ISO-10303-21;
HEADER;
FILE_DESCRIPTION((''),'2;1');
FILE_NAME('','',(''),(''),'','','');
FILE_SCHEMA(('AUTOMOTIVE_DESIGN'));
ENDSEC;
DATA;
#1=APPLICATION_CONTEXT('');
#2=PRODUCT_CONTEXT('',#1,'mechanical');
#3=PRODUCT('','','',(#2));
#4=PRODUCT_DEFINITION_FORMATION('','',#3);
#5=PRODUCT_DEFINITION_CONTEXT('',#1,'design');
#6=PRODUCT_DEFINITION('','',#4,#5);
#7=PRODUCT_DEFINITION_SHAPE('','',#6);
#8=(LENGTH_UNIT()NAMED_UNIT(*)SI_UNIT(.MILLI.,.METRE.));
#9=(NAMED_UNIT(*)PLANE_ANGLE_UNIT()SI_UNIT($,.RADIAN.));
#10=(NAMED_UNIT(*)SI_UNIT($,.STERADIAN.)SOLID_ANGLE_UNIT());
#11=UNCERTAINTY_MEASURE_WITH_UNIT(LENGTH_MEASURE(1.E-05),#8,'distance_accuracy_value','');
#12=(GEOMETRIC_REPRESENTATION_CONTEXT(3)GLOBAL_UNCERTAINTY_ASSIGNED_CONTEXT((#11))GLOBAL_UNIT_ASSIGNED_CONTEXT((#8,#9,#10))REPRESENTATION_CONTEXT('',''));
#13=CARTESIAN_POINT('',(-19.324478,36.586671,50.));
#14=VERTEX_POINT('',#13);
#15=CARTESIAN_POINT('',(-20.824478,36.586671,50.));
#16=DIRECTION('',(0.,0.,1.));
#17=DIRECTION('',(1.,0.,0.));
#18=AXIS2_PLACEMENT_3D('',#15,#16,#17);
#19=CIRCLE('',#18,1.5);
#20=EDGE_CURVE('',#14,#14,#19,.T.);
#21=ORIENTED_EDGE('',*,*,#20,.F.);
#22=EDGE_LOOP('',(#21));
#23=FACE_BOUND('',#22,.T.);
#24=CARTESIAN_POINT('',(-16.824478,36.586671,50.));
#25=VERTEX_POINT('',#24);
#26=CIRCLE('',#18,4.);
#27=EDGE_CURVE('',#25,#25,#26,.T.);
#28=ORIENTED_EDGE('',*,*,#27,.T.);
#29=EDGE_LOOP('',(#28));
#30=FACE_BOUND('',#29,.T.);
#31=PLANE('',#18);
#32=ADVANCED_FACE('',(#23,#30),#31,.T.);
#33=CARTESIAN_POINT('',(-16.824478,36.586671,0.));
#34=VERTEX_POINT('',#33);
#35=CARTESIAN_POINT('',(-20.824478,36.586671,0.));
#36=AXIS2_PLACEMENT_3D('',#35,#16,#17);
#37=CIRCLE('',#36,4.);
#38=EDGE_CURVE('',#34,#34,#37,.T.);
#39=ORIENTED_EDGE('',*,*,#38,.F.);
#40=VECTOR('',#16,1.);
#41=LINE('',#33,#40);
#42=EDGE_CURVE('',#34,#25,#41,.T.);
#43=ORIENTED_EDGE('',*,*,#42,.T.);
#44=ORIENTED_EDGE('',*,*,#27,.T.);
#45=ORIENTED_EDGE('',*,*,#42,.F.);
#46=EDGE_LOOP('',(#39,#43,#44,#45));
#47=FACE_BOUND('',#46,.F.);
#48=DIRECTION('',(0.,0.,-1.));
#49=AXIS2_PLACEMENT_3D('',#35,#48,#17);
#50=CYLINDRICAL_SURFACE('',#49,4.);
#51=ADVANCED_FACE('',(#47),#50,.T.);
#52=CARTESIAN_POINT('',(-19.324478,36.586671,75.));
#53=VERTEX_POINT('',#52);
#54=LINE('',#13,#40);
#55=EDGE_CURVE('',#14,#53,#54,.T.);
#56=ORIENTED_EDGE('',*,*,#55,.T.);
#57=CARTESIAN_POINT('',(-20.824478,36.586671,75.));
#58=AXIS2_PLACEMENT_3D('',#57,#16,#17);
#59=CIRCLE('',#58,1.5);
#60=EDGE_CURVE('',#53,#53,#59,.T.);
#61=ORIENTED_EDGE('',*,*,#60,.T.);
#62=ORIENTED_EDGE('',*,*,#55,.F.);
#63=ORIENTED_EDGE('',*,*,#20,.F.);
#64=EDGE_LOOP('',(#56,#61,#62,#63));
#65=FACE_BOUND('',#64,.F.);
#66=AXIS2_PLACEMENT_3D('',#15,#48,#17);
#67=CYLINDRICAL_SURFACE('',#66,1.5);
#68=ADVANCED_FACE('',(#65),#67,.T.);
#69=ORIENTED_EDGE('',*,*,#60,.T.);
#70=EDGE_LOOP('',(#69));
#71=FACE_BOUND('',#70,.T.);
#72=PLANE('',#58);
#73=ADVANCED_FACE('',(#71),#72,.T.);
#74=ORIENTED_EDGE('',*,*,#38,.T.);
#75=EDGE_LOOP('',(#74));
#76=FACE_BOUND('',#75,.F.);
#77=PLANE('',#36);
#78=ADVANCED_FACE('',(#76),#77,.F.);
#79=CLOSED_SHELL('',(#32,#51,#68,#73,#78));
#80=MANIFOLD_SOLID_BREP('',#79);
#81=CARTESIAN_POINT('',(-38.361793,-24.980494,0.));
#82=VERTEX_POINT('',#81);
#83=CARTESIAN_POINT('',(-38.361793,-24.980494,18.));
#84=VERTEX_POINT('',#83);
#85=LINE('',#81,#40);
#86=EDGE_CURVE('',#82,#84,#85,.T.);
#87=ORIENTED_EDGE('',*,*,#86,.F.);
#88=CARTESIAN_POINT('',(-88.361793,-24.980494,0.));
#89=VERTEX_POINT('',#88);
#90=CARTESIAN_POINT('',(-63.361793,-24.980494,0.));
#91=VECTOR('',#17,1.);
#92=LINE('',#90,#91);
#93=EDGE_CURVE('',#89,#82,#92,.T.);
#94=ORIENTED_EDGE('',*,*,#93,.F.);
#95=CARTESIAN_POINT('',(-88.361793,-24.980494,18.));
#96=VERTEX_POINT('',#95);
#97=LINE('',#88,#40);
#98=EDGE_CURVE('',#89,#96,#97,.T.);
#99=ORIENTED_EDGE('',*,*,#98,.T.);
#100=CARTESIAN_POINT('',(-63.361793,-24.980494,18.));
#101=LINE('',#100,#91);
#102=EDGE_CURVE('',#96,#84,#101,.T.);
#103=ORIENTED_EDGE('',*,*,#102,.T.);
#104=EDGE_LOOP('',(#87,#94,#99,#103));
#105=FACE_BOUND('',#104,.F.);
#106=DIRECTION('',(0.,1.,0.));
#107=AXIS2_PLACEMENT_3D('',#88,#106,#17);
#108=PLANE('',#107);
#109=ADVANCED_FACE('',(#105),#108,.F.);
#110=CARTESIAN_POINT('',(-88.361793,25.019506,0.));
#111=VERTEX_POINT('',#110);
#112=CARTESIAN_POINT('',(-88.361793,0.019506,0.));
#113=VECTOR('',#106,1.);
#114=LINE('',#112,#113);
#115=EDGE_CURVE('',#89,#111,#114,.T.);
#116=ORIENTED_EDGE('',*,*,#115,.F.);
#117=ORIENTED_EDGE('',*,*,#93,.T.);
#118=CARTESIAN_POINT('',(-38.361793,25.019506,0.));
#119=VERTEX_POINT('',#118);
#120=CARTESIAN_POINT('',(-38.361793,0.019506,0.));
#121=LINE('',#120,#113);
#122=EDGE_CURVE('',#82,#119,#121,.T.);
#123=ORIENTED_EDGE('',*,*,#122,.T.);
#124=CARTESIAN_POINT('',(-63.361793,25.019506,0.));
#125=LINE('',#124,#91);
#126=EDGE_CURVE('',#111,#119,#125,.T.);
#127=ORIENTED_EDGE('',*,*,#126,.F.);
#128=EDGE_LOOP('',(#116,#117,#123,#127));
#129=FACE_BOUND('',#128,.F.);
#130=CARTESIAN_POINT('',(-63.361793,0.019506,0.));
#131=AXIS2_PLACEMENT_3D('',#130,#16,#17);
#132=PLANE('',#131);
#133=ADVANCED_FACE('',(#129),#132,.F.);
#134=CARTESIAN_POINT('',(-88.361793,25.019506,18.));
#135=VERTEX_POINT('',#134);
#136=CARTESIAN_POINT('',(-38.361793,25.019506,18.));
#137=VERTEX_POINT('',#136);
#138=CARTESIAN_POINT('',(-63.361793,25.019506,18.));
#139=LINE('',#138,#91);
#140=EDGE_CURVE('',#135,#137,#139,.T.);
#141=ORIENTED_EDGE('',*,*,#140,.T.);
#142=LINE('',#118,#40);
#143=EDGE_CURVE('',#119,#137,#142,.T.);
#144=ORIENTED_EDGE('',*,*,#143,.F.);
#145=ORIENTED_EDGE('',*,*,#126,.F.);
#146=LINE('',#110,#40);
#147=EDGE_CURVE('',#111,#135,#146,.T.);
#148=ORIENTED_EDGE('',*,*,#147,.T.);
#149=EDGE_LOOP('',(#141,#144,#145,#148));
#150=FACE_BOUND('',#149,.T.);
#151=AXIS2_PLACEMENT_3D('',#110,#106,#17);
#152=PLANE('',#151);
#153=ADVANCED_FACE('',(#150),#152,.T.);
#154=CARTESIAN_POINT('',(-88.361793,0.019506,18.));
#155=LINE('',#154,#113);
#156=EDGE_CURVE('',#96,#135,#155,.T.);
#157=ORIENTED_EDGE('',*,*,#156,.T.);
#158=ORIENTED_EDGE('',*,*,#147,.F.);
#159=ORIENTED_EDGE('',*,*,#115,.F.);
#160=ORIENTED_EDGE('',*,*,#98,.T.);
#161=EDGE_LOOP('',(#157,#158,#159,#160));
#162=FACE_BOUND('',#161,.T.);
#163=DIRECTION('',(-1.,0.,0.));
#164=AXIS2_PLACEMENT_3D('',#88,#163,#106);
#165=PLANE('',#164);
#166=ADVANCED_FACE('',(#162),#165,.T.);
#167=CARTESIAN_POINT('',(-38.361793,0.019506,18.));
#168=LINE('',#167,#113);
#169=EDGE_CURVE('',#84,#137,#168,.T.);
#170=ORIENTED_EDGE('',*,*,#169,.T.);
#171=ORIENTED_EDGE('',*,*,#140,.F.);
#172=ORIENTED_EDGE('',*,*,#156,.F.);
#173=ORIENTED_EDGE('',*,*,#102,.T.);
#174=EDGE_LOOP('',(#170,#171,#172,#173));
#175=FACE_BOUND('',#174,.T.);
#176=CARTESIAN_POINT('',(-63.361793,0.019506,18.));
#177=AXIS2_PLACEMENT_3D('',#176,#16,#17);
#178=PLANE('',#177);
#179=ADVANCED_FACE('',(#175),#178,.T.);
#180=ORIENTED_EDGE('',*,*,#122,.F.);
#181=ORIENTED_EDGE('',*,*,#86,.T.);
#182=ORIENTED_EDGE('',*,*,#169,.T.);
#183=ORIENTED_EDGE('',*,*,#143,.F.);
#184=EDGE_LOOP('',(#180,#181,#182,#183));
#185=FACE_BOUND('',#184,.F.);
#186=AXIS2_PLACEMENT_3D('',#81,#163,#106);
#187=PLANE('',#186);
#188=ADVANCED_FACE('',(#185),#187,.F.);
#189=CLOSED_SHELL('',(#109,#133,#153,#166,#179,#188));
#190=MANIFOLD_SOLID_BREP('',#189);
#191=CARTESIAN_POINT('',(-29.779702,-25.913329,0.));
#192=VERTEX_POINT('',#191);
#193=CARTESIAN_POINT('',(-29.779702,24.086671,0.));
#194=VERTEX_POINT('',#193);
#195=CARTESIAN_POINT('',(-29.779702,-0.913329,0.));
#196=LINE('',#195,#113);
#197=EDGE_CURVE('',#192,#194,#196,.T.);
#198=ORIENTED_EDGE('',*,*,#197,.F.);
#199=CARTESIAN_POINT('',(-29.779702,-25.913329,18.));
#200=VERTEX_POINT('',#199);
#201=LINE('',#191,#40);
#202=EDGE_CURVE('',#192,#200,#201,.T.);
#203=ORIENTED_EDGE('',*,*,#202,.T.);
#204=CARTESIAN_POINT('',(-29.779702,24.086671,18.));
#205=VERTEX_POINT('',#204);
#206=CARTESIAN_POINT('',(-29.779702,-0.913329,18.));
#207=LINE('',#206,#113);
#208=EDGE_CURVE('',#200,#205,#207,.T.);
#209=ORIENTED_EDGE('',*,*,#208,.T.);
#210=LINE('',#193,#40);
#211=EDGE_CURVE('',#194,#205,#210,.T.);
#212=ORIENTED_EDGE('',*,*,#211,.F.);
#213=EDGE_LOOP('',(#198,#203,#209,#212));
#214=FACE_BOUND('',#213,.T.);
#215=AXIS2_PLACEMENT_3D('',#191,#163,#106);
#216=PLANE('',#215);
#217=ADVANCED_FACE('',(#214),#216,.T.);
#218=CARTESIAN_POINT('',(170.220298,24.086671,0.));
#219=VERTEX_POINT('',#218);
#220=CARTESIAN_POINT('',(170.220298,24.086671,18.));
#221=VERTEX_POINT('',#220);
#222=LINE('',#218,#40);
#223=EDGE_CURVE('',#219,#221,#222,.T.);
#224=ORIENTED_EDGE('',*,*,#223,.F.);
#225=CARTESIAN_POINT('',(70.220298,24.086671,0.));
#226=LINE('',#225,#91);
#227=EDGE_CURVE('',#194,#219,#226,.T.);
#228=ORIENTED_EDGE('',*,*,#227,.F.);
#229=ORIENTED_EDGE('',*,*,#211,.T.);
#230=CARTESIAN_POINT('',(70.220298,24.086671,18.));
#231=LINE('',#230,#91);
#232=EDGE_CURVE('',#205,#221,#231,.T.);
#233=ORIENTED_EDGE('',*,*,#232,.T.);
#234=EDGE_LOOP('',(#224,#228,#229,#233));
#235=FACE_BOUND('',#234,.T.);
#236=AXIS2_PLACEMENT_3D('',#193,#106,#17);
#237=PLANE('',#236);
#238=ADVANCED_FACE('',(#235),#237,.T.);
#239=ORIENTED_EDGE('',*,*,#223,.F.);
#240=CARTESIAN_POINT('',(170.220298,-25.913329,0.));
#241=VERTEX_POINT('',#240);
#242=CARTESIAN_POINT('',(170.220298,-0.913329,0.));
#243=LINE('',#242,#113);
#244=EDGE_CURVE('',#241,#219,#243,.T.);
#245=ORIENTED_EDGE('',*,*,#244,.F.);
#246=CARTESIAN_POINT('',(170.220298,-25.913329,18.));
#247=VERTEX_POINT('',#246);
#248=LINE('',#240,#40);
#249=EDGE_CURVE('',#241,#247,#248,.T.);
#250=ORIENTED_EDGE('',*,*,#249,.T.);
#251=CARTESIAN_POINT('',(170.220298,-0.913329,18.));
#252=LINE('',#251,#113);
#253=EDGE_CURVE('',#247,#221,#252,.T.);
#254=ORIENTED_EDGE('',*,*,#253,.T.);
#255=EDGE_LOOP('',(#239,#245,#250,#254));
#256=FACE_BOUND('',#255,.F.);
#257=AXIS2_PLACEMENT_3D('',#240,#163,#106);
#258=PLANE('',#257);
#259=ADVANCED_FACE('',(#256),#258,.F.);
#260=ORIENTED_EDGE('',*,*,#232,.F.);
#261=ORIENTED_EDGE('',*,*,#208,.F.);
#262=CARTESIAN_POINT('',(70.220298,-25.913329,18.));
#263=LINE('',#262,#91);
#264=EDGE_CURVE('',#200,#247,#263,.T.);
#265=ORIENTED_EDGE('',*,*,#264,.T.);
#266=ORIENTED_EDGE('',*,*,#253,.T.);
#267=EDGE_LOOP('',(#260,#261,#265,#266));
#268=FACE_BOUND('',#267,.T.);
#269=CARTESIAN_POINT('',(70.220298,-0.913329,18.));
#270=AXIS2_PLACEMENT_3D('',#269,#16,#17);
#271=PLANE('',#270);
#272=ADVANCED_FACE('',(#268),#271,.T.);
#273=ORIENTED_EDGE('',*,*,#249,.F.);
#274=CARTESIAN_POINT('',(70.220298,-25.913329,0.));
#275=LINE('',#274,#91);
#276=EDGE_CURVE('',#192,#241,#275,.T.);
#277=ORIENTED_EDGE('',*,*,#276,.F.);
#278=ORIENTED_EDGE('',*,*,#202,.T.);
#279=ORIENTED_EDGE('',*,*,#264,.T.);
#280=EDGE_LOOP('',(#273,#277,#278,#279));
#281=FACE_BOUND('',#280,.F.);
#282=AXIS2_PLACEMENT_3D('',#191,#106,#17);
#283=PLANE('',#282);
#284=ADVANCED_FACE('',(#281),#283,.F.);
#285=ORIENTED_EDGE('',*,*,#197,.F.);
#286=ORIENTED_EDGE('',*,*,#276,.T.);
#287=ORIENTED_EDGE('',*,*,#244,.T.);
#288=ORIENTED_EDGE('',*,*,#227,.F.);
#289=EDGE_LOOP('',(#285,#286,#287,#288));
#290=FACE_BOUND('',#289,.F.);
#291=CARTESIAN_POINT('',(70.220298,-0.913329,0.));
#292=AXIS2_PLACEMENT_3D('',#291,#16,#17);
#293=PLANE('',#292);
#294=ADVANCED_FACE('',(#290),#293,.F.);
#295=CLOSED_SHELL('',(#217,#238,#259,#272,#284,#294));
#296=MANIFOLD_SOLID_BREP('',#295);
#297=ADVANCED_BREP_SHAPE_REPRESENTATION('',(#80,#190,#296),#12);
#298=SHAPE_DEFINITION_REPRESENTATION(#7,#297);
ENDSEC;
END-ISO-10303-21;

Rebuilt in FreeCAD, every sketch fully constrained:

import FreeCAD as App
import Part
import Sketcher
from FreeCAD import Vector
Q = App.Units.Quantity

doc = App.newDocument("Part")
body = doc.addObject("PartDesign::Body", "Body")

# Sketch on XY plane
sketch1 = body.newObject("Sketcher::SketchObject", "Sketch")
sketch1.AttachmentSupport = (doc.getObject("XY_Plane"), [""])
sketch1.MapMode = "FlatFace"
sketch1.addGeometry(Part.Circle(Vector(-20.8, 36.6, 0), Vector(0, 0, 1), 4), False)
sketch1.addConstraint(Sketcher.Constraint("Diameter", 0, Q("8 mm")))
sketch1.addConstraint(Sketcher.Constraint("DistanceY", -1, 1, 0, 3, Q("36.586671 mm")))
sketch1.addConstraint(Sketcher.Constraint("DistanceX", 0, 3, -1, 1, Q("20.824478 mm")))
pad1 = body.newObject("PartDesign::Pad", "Pad")
pad1.Profile = sketch1
pad1.Length = 50

# Sketch on XY plane
sketch2 = body.newObject("Sketcher::SketchObject", "Sketch001")
sketch2.AttachmentSupport = (doc.getObject("XY_Plane"), [""])
sketch2.MapMode = "FlatFace"
sketch2.AttachmentOffset = App.Placement(Vector(0, 0, 50), App.Rotation())
sketch2.addGeometry(Part.Circle(Vector(-20.8, 36.6, 0), Vector(0, 0, 1), 1.5), False)
sketch2.addConstraint(Sketcher.Constraint("Diameter", 0, Q("3 mm")))
sketch2.addConstraint(Sketcher.Constraint("DistanceY", -1, 1, 0, 3, Q("36.586671 mm")))
sketch2.addConstraint(Sketcher.Constraint("DistanceX", 0, 3, -1, 1, Q("20.824478 mm")))
pad2 = body.newObject("PartDesign::Pad", "Pad001")
pad2.Profile = sketch2
pad2.Length = 25
body2 = doc.addObject("PartDesign::Body", "Body001")
body2.AllowCompound = True

# Sketch on XY plane
sketch3 = body2.newObject("Sketcher::SketchObject", "Sketch002")
sketch3.AttachmentSupport = (doc.getObject("XY_Plane001"), [""])
sketch3.MapMode = "FlatFace"
sketch3.addGeometry(Part.LineSegment(Vector(-30, 24, 0), Vector(-30, -26, 0)), False)
sketch3.addGeometry(Part.LineSegment(Vector(-30, -26, 0), Vector(170, -26, 0)), False)
sketch3.addGeometry(Part.LineSegment(Vector(170, -26, 0), Vector(170, 24, 0)), False)
sketch3.addGeometry(Part.LineSegment(Vector(170, 24, 0), Vector(-30, 24, 0)), False)
sketch3.addGeometry(Part.LineSegment(Vector(-88, 25, 0), Vector(-88, -25, 0)), False)
sketch3.addGeometry(Part.LineSegment(Vector(-88, -25, 0), Vector(-38, -25, 0)), False)
sketch3.addGeometry(Part.LineSegment(Vector(-38, -25, 0), Vector(-38, 25, 0)), False)
sketch3.addGeometry(Part.LineSegment(Vector(-38, 25, 0), Vector(-88, 25, 0)), False)
sketch3.addConstraint(Sketcher.Constraint("Coincident", 0, 2, 1, 1))
sketch3.addConstraint(Sketcher.Constraint("Coincident", 1, 2, 2, 1))
sketch3.addConstraint(Sketcher.Constraint("Coincident", 2, 2, 3, 1))
sketch3.addConstraint(Sketcher.Constraint("Coincident", 3, 2, 0, 1))
sketch3.addConstraint(Sketcher.Constraint("Coincident", 4, 2, 5, 1))
sketch3.addConstraint(Sketcher.Constraint("Coincident", 5, 2, 6, 1))
sketch3.addConstraint(Sketcher.Constraint("Coincident", 6, 2, 7, 1))
sketch3.addConstraint(Sketcher.Constraint("Coincident", 7, 2, 4, 1))
sketch3.addConstraint(Sketcher.Constraint("Vertical", 0))
sketch3.addConstraint(Sketcher.Constraint("Horizontal", 1))
sketch3.addConstraint(Sketcher.Constraint("Vertical", 2))
sketch3.addConstraint(Sketcher.Constraint("Horizontal", 3))
sketch3.addConstraint(Sketcher.Constraint("Vertical", 4))
sketch3.addConstraint(Sketcher.Constraint("Horizontal", 5))
sketch3.addConstraint(Sketcher.Constraint("Vertical", 6))
sketch3.addConstraint(Sketcher.Constraint("Horizontal", 7))
sketch3.addConstraint(Sketcher.Constraint("Equal", 7, 0))
sketch3.addConstraint(Sketcher.Constraint("Equal", 2, 4))
sketch3.addConstraint(Sketcher.Constraint("DistanceX", 1, 1, 1, 2, Q("200 mm")))
sketch3.addConstraint(Sketcher.Constraint("DistanceX", 5, 1, 5, 2, Q("50 mm")))
sketch3.addConstraint(Sketcher.Constraint("DistanceX", -1, 1, 1, 2, Q("170.220298 mm")))
sketch3.addConstraint(Sketcher.Constraint("DistanceY", 0, 2, -1, 1, Q("25.913329 mm")))
sketch3.addConstraint(Sketcher.Constraint("DistanceX", 4, 2, 0, 2, Q("58.582091 mm")))
sketch3.addConstraint(Sketcher.Constraint("DistanceY", 4, 2, -1, 1, Q("24.980494 mm")))
pad3 = body2.newObject("PartDesign::Pad", "Pad002")
pad3.Profile = sketch3
pad3.Length = 18

doc.recompute()
